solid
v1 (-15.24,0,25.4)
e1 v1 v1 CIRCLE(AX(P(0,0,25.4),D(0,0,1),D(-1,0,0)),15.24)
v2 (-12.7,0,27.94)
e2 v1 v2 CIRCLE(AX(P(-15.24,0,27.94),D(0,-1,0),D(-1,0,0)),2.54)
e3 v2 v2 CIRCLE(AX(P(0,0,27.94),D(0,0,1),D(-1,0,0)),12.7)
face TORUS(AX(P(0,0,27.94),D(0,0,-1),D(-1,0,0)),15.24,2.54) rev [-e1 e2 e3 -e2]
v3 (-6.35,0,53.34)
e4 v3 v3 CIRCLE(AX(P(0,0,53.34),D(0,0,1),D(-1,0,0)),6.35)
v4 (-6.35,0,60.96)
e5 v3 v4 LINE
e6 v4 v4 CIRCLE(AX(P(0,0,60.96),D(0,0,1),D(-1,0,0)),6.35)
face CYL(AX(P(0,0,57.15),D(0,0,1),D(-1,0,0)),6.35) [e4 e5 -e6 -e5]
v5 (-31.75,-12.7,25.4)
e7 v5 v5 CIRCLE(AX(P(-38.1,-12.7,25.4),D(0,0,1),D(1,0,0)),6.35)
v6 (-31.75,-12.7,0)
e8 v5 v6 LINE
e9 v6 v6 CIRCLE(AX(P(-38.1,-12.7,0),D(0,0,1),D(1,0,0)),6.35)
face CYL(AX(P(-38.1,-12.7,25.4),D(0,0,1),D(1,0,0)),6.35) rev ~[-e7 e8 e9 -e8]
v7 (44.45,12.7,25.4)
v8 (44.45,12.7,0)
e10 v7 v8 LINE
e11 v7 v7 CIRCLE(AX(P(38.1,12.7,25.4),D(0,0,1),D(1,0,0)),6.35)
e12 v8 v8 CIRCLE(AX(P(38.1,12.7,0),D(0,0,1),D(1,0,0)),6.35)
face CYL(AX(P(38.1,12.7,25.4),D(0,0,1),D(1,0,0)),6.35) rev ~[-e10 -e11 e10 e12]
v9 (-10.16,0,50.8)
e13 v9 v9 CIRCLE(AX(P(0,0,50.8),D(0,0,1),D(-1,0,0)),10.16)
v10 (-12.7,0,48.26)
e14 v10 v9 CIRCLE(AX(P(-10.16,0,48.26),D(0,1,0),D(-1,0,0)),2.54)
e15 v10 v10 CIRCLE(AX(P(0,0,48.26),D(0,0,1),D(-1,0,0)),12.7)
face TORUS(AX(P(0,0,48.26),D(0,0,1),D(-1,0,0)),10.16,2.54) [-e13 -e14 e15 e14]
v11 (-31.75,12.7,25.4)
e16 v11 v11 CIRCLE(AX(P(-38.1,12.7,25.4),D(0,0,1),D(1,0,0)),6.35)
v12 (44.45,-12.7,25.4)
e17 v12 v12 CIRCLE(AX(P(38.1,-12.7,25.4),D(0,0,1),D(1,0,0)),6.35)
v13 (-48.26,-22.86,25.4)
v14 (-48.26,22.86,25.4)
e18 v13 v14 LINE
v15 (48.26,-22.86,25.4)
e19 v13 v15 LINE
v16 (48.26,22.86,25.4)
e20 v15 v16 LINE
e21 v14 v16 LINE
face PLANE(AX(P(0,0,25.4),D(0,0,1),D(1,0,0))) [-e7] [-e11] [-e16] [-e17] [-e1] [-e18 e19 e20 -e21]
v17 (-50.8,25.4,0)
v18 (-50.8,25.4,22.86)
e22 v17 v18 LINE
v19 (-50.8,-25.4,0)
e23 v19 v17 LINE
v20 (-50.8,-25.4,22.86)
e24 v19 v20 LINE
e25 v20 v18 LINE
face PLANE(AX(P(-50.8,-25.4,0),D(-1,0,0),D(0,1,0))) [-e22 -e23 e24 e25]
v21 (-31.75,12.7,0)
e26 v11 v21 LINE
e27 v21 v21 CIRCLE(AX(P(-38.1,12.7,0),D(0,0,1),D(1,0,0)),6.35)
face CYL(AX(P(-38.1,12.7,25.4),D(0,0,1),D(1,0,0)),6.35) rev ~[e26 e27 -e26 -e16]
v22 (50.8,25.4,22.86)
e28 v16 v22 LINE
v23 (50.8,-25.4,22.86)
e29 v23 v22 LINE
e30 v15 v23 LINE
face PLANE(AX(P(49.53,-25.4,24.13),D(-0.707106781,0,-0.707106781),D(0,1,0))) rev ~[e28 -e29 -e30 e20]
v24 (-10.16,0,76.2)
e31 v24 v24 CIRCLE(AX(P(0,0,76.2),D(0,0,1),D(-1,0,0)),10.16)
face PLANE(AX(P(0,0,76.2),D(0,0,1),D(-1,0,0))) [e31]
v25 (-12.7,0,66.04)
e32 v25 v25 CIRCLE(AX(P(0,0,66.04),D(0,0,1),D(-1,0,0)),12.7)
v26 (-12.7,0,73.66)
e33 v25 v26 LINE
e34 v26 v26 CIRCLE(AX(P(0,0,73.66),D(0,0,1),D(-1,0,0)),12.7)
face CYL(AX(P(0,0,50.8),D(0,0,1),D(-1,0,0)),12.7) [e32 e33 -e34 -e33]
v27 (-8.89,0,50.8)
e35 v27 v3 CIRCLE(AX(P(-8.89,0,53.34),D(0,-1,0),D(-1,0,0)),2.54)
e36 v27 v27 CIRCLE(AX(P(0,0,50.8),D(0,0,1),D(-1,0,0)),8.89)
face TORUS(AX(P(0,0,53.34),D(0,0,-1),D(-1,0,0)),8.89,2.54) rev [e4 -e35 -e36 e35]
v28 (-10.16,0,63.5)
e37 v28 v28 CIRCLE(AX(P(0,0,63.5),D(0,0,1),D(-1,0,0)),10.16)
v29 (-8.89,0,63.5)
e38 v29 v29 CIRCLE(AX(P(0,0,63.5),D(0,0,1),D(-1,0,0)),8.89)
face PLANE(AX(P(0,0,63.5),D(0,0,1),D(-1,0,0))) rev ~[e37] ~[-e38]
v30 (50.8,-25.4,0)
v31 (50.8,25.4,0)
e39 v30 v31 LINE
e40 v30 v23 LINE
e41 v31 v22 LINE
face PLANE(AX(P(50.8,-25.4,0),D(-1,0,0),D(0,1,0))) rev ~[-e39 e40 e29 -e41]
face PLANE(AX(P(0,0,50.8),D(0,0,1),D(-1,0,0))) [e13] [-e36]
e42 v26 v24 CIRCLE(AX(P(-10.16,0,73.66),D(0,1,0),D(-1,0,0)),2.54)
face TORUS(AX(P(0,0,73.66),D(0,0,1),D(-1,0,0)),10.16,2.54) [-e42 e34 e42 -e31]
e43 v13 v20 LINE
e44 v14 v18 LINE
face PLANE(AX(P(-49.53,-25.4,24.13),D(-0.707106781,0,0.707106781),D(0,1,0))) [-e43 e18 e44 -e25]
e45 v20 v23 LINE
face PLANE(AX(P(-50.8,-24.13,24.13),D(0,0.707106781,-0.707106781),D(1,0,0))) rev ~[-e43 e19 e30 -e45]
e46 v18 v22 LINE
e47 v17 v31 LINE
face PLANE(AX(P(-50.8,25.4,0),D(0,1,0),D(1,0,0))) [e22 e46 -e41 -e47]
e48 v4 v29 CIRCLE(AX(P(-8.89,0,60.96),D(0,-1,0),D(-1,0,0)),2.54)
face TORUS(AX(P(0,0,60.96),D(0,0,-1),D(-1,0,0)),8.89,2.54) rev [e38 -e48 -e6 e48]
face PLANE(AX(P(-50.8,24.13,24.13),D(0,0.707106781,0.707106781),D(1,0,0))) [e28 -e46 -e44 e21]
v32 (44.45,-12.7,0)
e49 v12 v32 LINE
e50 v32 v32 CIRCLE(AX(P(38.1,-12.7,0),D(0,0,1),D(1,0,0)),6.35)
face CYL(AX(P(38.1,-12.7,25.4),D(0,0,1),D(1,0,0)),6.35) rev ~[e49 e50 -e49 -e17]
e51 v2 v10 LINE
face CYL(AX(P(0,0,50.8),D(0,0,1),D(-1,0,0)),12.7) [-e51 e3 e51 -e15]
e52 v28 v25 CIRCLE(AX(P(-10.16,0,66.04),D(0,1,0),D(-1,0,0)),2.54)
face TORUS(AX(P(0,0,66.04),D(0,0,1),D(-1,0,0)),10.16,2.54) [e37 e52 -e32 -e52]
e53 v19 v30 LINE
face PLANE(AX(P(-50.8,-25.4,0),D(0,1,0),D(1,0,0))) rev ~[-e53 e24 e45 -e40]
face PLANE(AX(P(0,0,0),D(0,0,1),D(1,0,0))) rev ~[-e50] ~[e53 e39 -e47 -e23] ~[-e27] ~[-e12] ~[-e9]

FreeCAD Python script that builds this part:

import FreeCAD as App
import Part
import Sketcher

V = App.Vector
Q = App.Units.Quantity


def edges_at(feature, points):
    """Names of the edges that pass closest to the given points."""
    edges = feature.Shape.Edges
    near = lambda p: min(range(len(edges)), key=lambda i: edges[i].distToShape(Part.Vertex(*p))[0])
    return sorted({f"Edge{near(p) + 1}" for p in points})

doc = App.newDocument("Part")
body = doc.addObject("PartDesign::Body", "Body")

sketch1 = body.newObject("Sketcher::SketchObject", "Sketch")
sketch1.AttachmentSupport = (doc.getObject("XY_Plane"), [""])
sketch1.MapMode = "FlatFace"
sketch1.addGeometry([
    Part.LineSegment(V(-50.8, 25.4, 0), V(-50.8, -25.4, 0)),
    Part.LineSegment(V(-50.8, -25.4, 0), V(50.8, -25.4, 0)),
    Part.LineSegment(V(50.8, -25.4, 0), V(50.8, 25.4, 0)),
    Part.LineSegment(V(50.8, 25.4, 0), V(-50.8, 25.4, 0)),
], False)
sketch1.addConstraint([
    Sketcher.Constraint("Coincident", 0, 2, 1, 1),
    Sketcher.Constraint("Coincident", 1, 2, 2, 1),
    Sketcher.Constraint("Coincident", 2, 2, 3, 1),
    Sketcher.Constraint("Coincident", 3, 2, 0, 1),
    Sketcher.Constraint("Vertical", 0),
    Sketcher.Constraint("Horizontal", 1),
    Sketcher.Constraint("Vertical", 2),
    Sketcher.Constraint("Horizontal", 3),
    Sketcher.Constraint("Symmetric", 0, 2, 2, 2, -1, 1),
    Sketcher.Constraint("DistanceX", 1, 1, 1, 2, Q("4 in")),
    Sketcher.Constraint("DistanceY", 0, 2, 0, 1, Q("2 in")),
])
pad1 = body.newObject("PartDesign::Pad", "Pad")
pad1.Profile = sketch1
pad1.Length = Q("1 in")

sketch2 = body.newObject("Sketcher::SketchObject", "Sketch001")
sketch2.AttachmentSupport = (doc.getObject("XY_Plane"), [""])
sketch2.MapMode = "FlatFace"
sketch2.AttachmentOffset = App.Placement(V(0, 0, 1 * 25.4), App.Rotation())
sketch2.addGeometry([
    Part.Circle(V(-38.1, 12.7, 0), V(0, 0, 1), 6.35),
    Part.Circle(V(38.1, 12.7, 0), V(0, 0, 1), 6.35),
    Part.Circle(V(-38.1, -12.7, 0), V(0, 0, 1), 6.35),
    Part.Circle(V(38.1, -12.7, 0), V(0, 0, 1), 6.35),
], False)
sketch2.addConstraint([
    Sketcher.Constraint("Equal", 0, 1),
    Sketcher.Constraint("Equal", 1, 2),
    Sketcher.Constraint("Equal", 2, 3),
    Sketcher.Constraint("Symmetric", 1, 3, 2, 3, -1, 1),
    Sketcher.Constraint("Symmetric", 0, 3, 3, 3, -1, 1),
    Sketcher.Constraint("Symmetric", 0, 3, 1, 3, -2),
    Sketcher.Constraint("Diameter", 0, Q("0.5 in")),
    Sketcher.Constraint("DistanceX", 0, 3, 1, 3, Q("3 in")),
    Sketcher.Constraint("DistanceY", 2, 3, 0, 3, Q("1 in")),
])
pocket1 = body.newObject("PartDesign::Pocket", "Pocket")
pocket1.Profile = sketch2
pocket1.Type = "ThroughAll"

sketch3 = body.newObject("Sketcher::SketchObject", "Sketch002")
sketch3.AttachmentSupport = (doc.getObject("XZ_Plane"), [""])
sketch3.MapMode = "FlatFace"
sketch3.addGeometry([
    Part.LineSegment(V(-12.7, 76.2, 0), V(-12.7, 25.4, 0)),
    Part.LineSegment(V(-12.7, 25.4, 0), V(0, 25.4, 0)),
    Part.LineSegment(V(0, 25.4, 0), V(0, 76.2, 0)),
    Part.LineSegment(V(0, 76.2, 0), V(-12.7, 76.2, 0)),
], False)
sketch3.addConstraint([
    Sketcher.Constraint("Coincident", 0, 2, 1, 1),
    Sketcher.Constraint("Coincident", 1, 2, 2, 1),
    Sketcher.Constraint("Coincident", 2, 2, 3, 1),
    Sketcher.Constraint("Coincident", 3, 2, 0, 1),
    Sketcher.Constraint("Vertical", 0),
    Sketcher.Constraint("Horizontal", 1),
    Sketcher.Constraint("Vertical", 2),
    Sketcher.Constraint("Horizontal", 3),
    Sketcher.Constraint("PointOnObject", 1, 2, -2),
    Sketcher.Constraint("DistanceY", 0, 2, 0, 1, Q("2 in")),
    Sketcher.Constraint("DistanceX", 1, 1, 1, 2, Q("0.5 in")),
    Sketcher.Constraint("DistanceY", -1, 1, 0, 2, Q("1 in")),
])
revolution = body.newObject("PartDesign::Revolution", "Revolution")
revolution.Profile = sketch3
revolution.ReferenceAxis = (sketch3, ["V_Axis"])
revolution.Angle = 360

sketch4 = body.newObject("Sketcher::SketchObject", "Sketch003")
sketch4.AttachmentSupport = (doc.getObject("XZ_Plane"), [""])
sketch4.MapMode = "FlatFace"
sketch4.addGeometry([
    Part.LineSegment(V(-17.850854, 63.5, 0), V(-17.850854, 50.8, 0)),
    Part.LineSegment(V(-17.850854, 50.8, 0), V(-6.35, 50.8, 0)),
    Part.LineSegment(V(-6.35, 50.8, 0), V(-6.35, 63.5, 0)),
    Part.LineSegment(V(-6.35, 63.5, 0), V(-17.850854, 63.5, 0)),
], False)
sketch4.addConstraint([
    Sketcher.Constraint("Coincident", 0, 2, 1, 1),
    Sketcher.Constraint("Coincident", 1, 2, 2, 1),
    Sketcher.Constraint("Coincident", 2, 2, 3, 1),
    Sketcher.Constraint("Coincident", 3, 2, 0, 1),
    Sketcher.Constraint("Vertical", 0),
    Sketcher.Constraint("Horizontal", 1),
    Sketcher.Constraint("Vertical", 2),
    Sketcher.Constraint("Horizontal", 3),
    Sketcher.Constraint("DistanceY", 0, 2, 0, 1, Q("0.5 in")),
    Sketcher.Constraint("DistanceY", -1, 1, 0, 2, Q("2 in")),
    Sketcher.Constraint("DistanceX", 1, 2, -1, 1, Q("0.25 in")),
    Sketcher.Constraint("DistanceX", 1, 1, 1, 2, 11.500854),
])
groove = body.newObject("PartDesign::Groove", "Groove")
groove.Profile = sketch4
groove.ReferenceAxis = (sketch4, ["V_Axis"])
groove.Angle = 360
doc.recompute()

fillet = body.newObject("PartDesign::Fillet", "Fillet")
fillet.Base = (groove, edges_at(groove, [
    (12.7, 0, 50.8),
    (12.7, 0, 25.4),
    (12.7, 0, 63.5),
    (12.7, 0, 76.2),
    (6.35, 0, 63.5),
    (6.35, 0, 50.8),
]))
fillet.Radius = Q("0.1 in")
doc.recompute()

chamfer = body.newObject("PartDesign::Chamfer", "Chamfer")
chamfer.Base = (fillet, edges_at(fillet, [
    (0, -25.4, 25.4),
    (50.8, 0, 25.4),
    (0, 25.4, 25.4),
    (-50.8, 0, 25.4),
]))
chamfer.Size = Q("0.1 in")

doc.recompute()
